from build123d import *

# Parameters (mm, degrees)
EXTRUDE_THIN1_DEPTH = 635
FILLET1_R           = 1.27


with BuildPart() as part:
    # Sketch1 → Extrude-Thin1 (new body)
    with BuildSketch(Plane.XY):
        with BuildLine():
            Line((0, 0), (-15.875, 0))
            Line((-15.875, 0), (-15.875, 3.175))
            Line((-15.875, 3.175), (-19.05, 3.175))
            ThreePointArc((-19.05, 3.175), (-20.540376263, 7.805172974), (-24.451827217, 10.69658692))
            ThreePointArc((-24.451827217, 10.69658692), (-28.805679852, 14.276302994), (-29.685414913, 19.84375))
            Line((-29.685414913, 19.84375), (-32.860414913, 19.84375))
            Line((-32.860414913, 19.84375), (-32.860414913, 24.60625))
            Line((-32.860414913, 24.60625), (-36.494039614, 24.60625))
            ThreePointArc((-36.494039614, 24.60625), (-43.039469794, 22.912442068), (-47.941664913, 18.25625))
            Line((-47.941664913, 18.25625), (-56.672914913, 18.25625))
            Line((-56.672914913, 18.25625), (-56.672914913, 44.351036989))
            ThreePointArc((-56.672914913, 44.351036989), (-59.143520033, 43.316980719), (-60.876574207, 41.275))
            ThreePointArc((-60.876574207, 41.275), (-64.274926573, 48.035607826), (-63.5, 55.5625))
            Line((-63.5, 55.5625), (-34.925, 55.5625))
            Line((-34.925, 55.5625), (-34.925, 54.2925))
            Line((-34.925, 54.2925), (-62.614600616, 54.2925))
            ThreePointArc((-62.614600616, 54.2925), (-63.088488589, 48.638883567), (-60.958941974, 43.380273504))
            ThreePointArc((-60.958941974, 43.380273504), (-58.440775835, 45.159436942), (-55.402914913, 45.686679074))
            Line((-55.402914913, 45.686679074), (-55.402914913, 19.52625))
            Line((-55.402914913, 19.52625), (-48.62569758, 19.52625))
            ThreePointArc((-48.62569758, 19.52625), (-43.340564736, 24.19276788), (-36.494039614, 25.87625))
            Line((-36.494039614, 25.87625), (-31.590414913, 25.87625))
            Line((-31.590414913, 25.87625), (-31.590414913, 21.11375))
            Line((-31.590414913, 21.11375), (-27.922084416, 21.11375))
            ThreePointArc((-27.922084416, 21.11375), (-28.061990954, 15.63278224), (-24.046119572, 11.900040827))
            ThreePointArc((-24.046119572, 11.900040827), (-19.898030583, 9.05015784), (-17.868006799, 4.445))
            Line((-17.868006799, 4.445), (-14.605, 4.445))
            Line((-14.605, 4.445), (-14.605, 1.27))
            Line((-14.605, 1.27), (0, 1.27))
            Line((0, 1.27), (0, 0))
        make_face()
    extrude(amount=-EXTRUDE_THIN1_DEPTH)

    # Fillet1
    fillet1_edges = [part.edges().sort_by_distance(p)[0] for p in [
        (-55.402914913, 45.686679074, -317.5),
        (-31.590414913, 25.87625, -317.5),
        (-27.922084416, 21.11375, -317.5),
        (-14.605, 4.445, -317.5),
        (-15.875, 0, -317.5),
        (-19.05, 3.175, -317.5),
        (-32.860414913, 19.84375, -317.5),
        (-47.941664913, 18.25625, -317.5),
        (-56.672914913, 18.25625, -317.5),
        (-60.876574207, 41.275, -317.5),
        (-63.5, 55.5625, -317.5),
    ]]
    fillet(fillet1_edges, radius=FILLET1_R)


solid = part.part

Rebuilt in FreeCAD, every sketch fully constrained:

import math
import FreeCAD as App
import Part
import Sketcher
from FreeCAD import Vector
Q = App.Units.Quantity


def edges_at(feature, points):
    """Names of the edges that pass closest to the given points."""
    edges = feature.Shape.Edges
    near = lambda p: min(range(len(edges)), key=lambda i: edges[i].distToShape(Part.Vertex(*p))[0])
    return sorted({f"Edge{near(p) + 1}" for p in points})

doc = App.newDocument("Part")
params = doc.addObject("Spreadsheet::Sheet", "Params")
for row, (alias, value) in enumerate([
    ("sketch1_radius", "0.53125 in"),
    ("sketch1_radius2", "0.3125 in"),
    ("sketch1_height", "0.05 in"),
    ("sketch1_width", "0.625 in"),
    ("sketch1_width2", "0.575 in"),
    ("pad1_length", "25 in"),
    ("fillet_radius", "0.05 in"),
], start=1):
    params.set(f"A{row}", alias)
    params.set(f"B{row}", "=" + value)
    params.setAlias(f"B{row}", alias)

body = doc.addObject("PartDesign::Body", "Body")

# Sketch on XY plane
sketch1 = body.newObject("Sketcher::SketchObject", "Sketch")
sketch1.AttachmentSupport = (doc.getObject("XY_Plane"), [""])
sketch1.MapMode = "FlatFace"
sketch1.addGeometry([
    Part.LineSegment(Vector(-15.9, 0, 0), Vector(0, 0, 0)),  # 0
    Part.LineSegment(Vector(0, 0, 0), Vector(0, 1.3, 0)),  # 1
    Part.LineSegment(Vector(0, 1.3, 0), Vector(-14.6, 1.3, 0)),  # 2
    Part.LineSegment(Vector(-14.6, 1.3, 0), Vector(-14.6, 4.4, 0)),  # 3
    Part.LineSegment(Vector(-14.6, 4.4, 0), Vector(-17.9, 4.4, 0)),  # 4
    Part.ArcOfCircle(Part.Circle(Vector(-27, 3.2, 0), Vector(0, 0, 1), 9.2), math.radians(8), math.radians(71)),  # 5
    Part.ArcOfCircle(Part.Circle(Vector(-21.9, 18.2, 0), Vector(0, 0, 1), 6.7), math.radians(154), math.radians(251)),  # 6
    Part.LineSegment(Vector(-27.9, 21.1, 0), Vector(-31.6, 21.1, 0)),  # 7
    Part.LineSegment(Vector(-31.6, 21.1, 0), Vector(-31.6, 25.9, 0)),  # 8
    Part.LineSegment(Vector(-31.6, 25.9, 0), Vector(-36.5, 25.9, 0)),  # 9
    Part.ArcOfCircle(Part.Circle(Vector(-36.5, 11.1, 0), Vector(0, 0, 1), 14.8), math.radians(90), math.radians(145)),  # 10
    Part.LineSegment(Vector(-48.6, 19.5, 0), Vector(-55.4, 19.5, 0)),  # 11
    Part.LineSegment(Vector(-55.4, 19.5, 0), Vector(-55.4, 45.7, 0)),  # 12
    Part.ArcOfCircle(Part.Circle(Vector(-55.8, 38.7, 0), Vector(0, 0, 1), 7), math.radians(87), math.radians(138)),  # 13
    Part.ArcOfCircle(Part.Circle(Vector(-51, 50.5, 0), Vector(0, 0, 1), 12.2), math.radians(162), math.radians(215)),  # 14
    Part.LineSegment(Vector(-62.6, 54.3, 0), Vector(-34.9, 54.3, 0)),  # 15
    Part.LineSegment(Vector(-34.9, 54.3, 0), Vector(-34.9, 55.6, 0)),  # 16
    Part.LineSegment(Vector(-34.9, 55.6, 0), Vector(-63.5, 55.6, 0)),  # 17
    Part.ArcOfCircle(Part.Circle(Vector(-51, 50.5, 0), Vector(0, 0, 1), 13.5), math.radians(158), math.radians(223)),  # 18
    Part.ArcOfCircle(Part.Circle(Vector(-55.8, 38.7, 0), Vector(0, 0, 1), 5.7), math.radians(99), math.radians(153)),  # 19
    Part.LineSegment(Vector(-56.7, 44.4, 0), Vector(-56.7, 18.3, 0)),  # 20
    Part.LineSegment(Vector(-56.7, 18.3, 0), Vector(-47.9, 18.3, 0)),  # 21
    Part.ArcOfCircle(Part.Circle(Vector(-36.5, 11.1, 0), Vector(0, 0, 1), 13.5), math.radians(90), math.radians(148)),  # 22
    Part.LineSegment(Vector(-36.5, 24.6, 0), Vector(-32.9, 24.6, 0)),  # 23
    Part.LineSegment(Vector(-32.9, 24.6, 0), Vector(-32.9, 19.8, 0)),  # 24
    Part.LineSegment(Vector(-32.9, 19.8, 0), Vector(-29.7, 19.8, 0)),  # 25
    Part.ArcOfCircle(Part.Circle(Vector(-21.9, 18.2, 0), Vector(0, 0, 1), 7.9), math.radians(168), math.radians(251)),  # 26
    Part.ArcOfCircle(Part.Circle(Vector(-27, 3.2, 0), Vector(0, 0, 1), 7.9), math.radians(0), math.radians(71)),  # 27
    Part.LineSegment(Vector(-19.1, 3.2, 0), Vector(-15.9, 3.2, 0)),  # 28
    Part.LineSegment(Vector(-15.9, 3.2, 0), Vector(-15.9, 0, 0)),  # 29
], False)
sketch1.addConstraint([
    Sketcher.Constraint("Coincident", 0, 2, 1, 1),
    Sketcher.Constraint("Coincident", 1, 2, 2, 1),
    Sketcher.Constraint("Coincident", 2, 2, 3, 1),
    Sketcher.Constraint("Coincident", 3, 2, 4, 1),
    Sketcher.Constraint("Coincident", 4, 2, 5, 1),
    Sketcher.Constraint("Tangent", 5, 2, 6, 2),
    Sketcher.Constraint("Coincident", 6, 1, 7, 1),
    Sketcher.Constraint("Coincident", 7, 2, 8, 1),
    Sketcher.Constraint("Coincident", 8, 2, 9, 1),
    Sketcher.Constraint("Tangent", 9, 2, 10, 1),
    Sketcher.Constraint("Coincident", 10, 2, 11, 1),
    Sketcher.Constraint("Coincident", 11, 2, 12, 1),
    Sketcher.Constraint("Coincident", 12, 2, 13, 1),
    Sketcher.Constraint("Coincident", 13, 2, 14, 2),
    Sketcher.Constraint("Coincident", 14, 1, 15, 1),
    Sketcher.Constraint("Coincident", 15, 2, 16, 1),
    Sketcher.Constraint("Coincident", 16, 2, 17, 1),
    Sketcher.Constraint("Coincident", 17, 2, 18, 1),
    Sketcher.Constraint("Coincident", 18, 2, 19, 2),
    Sketcher.Constraint("Coincident", 19, 1, 20, 1),
    Sketcher.Constraint("Coincident", 20, 2, 21, 1),
    Sketcher.Constraint("Coincident", 21, 2, 22, 2),
    Sketcher.Constraint("Tangent", 22, 1, 23, 1),
    Sketcher.Constraint("Coincident", 23, 2, 24, 1),
    Sketcher.Constraint("Coincident", 24, 2, 25, 1),
    Sketcher.Constraint("Coincident", 25, 2, 26, 1),
    Sketcher.Constraint("Tangent", 26, 2, 27, 2),
    Sketcher.Constraint("Coincident", 27, 1, 28, 1),
    Sketcher.Constraint("Coincident", 28, 2, 29, 1),
    Sketcher.Constraint("Coincident", 29, 2, 0, 1),
    Sketcher.Constraint("Horizontal", 0),
    Sketcher.Constraint("Vertical", 1),
    Sketcher.Constraint("Horizontal", 2),
    Sketcher.Constraint("Vertical", 3),
    Sketcher.Constraint("Horizontal", 4),
    Sketcher.Constraint("Horizontal", 7),
    Sketcher.Constraint("Vertical", 8),
    Sketcher.Constraint("Horizontal", 9),
    Sketcher.Constraint("Horizontal", 11),
    Sketcher.Constraint("Vertical", 12),
    Sketcher.Constraint("Horizontal", 15),
    Sketcher.Constraint("Vertical", 16),
    Sketcher.Constraint("Horizontal", 17),
    Sketcher.Constraint("Vertical", 20),
    Sketcher.Constraint("Horizontal", 21),
    Sketcher.Constraint("Horizontal", 23),
    Sketcher.Constraint("Vertical", 24),
    Sketcher.Constraint("Horizontal", 25),
    Sketcher.Constraint("Horizontal", 28),
    Sketcher.Constraint("Vertical", 29),
    Sketcher.Constraint("Coincident", 0, 2, -1, 1),
    Sketcher.Constraint("Coincident", 18, 3, 14, 3),
    Sketcher.Constraint("Coincident", 19, 3, 13, 3),
    Sketcher.Constraint("Coincident", 22, 3, 10, 3),
    Sketcher.Constraint("Coincident", 26, 3, 6, 3),
    Sketcher.Constraint("Coincident", 27, 3, 5, 3),
    Sketcher.Constraint("Equal", 18, 22),
    Sketcher.Constraint("Equal", 26, 27),
    Sketcher.Constraint("Horizontal", 5, 3, 27, 1),
    Sketcher.Constraint("Equal", 25, 28),
    Sketcher.Constraint("Equal", 28, 3),
    Sketcher.Constraint("Equal", 1, 16),
    Sketcher.Constraint("Equal", 8, 24),
    Sketcher.Constraint("Equal", 3, 29),
    Sketcher.Constraint("Radius", 18, Q("0.53125 in")),
    Sketcher.Constraint("Radius", 26, Q("0.3125 in")),
    Sketcher.Constraint("DistanceY", 1, 1, 1, 2, Q("0.05 in")),
    Sketcher.Constraint("DistanceX", 17, 2, -1, 1, Q("2.5 in")),
    Sketcher.Constraint("Radius", 5, Q("0.3625 in")),
    Sketcher.Constraint("DistanceX", 0, 1, 0, 2, Q("0.625 in")),
    Sketcher.Constraint("DistanceX", 2, 2, 2, 1, Q("0.575 in")),
    Sketcher.Constraint("DistanceX", 17, 2, 17, 1, Q("1.125 in")),
    Sketcher.Constraint("DistanceX", 21, 1, 21, 2, Q("0.34375 in")),
    Sketcher.Constraint("DistanceX", 25, 1, 25, 2, Q("0.125 in")),
    Sketcher.Constraint("DistanceY", 8, 1, 8, 2, Q("0.1875 in")),
    Sketcher.Constraint("DistanceY", 10, 2, 9, 2, Q("0.25 in")),
    Sketcher.Constraint("DistanceX", 19, 1, 12, 2, Q("0.05 in")),
    Sketcher.Constraint("DistanceY", 20, 2, 11, 2, Q("0.05 in")),
    Sketcher.Constraint("DistanceY", 22, 1, 9, 2, Q("0.05 in")),
    Sketcher.Constraint("DistanceX", 23, 2, 8, 2, Q("0.05 in")),
    Sketcher.Constraint("DistanceY", -1, 1, 10, 3, Q("0.4375 in")),
    Sketcher.Constraint("DistanceY", -1, 1, 16, 2, Q("2.1875 in")),
    Sketcher.Constraint("DistanceY", -1, 1, 18, 2, Q("1.625 in")),
    Sketcher.Constraint("Radius", 14, Q("12.22375 mm")),
    Sketcher.Constraint("DistanceX", 15, 1, 15, 2, Q("27.689601 mm")),
    Sketcher.Constraint("Radius", 13, Q("7.013323 mm")),
    Sketcher.Constraint("Radius", 19, Q("5.743323 mm")),
    Sketcher.Constraint("DistanceX", 7, 2, 7, 1, Q("3.66833 mm")),
    Sketcher.Constraint("DistanceY", 12, 1, 12, 2, Q("26.160429 mm")),
    Sketcher.Constraint("DistanceX", 9, 2, 9, 1, Q("4.903625 mm")),
])
sketch1.setExpression("Constraints[64]", "Params.sketch1_radius")
sketch1.setExpression("Constraints[65]", "Params.sketch1_radius2")
sketch1.setExpression("Constraints[66]", "Params.sketch1_height")
sketch1.setExpression("Constraints[69]", "Params.sketch1_width")
sketch1.setExpression("Constraints[70]", "Params.sketch1_width2")
pad1 = body.newObject("PartDesign::Pad", "Pad")
pad1.Profile = sketch1
pad1.setExpression("Length", "Params.pad1_length")
pad1.Reversed = True
doc.recompute()

fillet = body.newObject("PartDesign::Fillet", "Fillet")
fillet.Base = (pad1, edges_at(pad1, [
    (-55.403, 45.687, -317.5),
    (-31.59, 25.876, -317.5),
    (-27.922, 21.114, -317.5),
    (-14.605, 4.445, -317.5),
    (-15.875, 0, -317.5),
    (-19.05, 3.175, -317.5),
    (-32.86, 19.844, -317.5),
    (-47.942, 18.256, -317.5),
    (-56.673, 18.256, -317.5),
    (-60.877, 41.275, -317.5),
    (-63.5, 55.562, -317.5),
]))
fillet.setExpression("Radius", "Params.fillet_radius")

doc.recompute()
